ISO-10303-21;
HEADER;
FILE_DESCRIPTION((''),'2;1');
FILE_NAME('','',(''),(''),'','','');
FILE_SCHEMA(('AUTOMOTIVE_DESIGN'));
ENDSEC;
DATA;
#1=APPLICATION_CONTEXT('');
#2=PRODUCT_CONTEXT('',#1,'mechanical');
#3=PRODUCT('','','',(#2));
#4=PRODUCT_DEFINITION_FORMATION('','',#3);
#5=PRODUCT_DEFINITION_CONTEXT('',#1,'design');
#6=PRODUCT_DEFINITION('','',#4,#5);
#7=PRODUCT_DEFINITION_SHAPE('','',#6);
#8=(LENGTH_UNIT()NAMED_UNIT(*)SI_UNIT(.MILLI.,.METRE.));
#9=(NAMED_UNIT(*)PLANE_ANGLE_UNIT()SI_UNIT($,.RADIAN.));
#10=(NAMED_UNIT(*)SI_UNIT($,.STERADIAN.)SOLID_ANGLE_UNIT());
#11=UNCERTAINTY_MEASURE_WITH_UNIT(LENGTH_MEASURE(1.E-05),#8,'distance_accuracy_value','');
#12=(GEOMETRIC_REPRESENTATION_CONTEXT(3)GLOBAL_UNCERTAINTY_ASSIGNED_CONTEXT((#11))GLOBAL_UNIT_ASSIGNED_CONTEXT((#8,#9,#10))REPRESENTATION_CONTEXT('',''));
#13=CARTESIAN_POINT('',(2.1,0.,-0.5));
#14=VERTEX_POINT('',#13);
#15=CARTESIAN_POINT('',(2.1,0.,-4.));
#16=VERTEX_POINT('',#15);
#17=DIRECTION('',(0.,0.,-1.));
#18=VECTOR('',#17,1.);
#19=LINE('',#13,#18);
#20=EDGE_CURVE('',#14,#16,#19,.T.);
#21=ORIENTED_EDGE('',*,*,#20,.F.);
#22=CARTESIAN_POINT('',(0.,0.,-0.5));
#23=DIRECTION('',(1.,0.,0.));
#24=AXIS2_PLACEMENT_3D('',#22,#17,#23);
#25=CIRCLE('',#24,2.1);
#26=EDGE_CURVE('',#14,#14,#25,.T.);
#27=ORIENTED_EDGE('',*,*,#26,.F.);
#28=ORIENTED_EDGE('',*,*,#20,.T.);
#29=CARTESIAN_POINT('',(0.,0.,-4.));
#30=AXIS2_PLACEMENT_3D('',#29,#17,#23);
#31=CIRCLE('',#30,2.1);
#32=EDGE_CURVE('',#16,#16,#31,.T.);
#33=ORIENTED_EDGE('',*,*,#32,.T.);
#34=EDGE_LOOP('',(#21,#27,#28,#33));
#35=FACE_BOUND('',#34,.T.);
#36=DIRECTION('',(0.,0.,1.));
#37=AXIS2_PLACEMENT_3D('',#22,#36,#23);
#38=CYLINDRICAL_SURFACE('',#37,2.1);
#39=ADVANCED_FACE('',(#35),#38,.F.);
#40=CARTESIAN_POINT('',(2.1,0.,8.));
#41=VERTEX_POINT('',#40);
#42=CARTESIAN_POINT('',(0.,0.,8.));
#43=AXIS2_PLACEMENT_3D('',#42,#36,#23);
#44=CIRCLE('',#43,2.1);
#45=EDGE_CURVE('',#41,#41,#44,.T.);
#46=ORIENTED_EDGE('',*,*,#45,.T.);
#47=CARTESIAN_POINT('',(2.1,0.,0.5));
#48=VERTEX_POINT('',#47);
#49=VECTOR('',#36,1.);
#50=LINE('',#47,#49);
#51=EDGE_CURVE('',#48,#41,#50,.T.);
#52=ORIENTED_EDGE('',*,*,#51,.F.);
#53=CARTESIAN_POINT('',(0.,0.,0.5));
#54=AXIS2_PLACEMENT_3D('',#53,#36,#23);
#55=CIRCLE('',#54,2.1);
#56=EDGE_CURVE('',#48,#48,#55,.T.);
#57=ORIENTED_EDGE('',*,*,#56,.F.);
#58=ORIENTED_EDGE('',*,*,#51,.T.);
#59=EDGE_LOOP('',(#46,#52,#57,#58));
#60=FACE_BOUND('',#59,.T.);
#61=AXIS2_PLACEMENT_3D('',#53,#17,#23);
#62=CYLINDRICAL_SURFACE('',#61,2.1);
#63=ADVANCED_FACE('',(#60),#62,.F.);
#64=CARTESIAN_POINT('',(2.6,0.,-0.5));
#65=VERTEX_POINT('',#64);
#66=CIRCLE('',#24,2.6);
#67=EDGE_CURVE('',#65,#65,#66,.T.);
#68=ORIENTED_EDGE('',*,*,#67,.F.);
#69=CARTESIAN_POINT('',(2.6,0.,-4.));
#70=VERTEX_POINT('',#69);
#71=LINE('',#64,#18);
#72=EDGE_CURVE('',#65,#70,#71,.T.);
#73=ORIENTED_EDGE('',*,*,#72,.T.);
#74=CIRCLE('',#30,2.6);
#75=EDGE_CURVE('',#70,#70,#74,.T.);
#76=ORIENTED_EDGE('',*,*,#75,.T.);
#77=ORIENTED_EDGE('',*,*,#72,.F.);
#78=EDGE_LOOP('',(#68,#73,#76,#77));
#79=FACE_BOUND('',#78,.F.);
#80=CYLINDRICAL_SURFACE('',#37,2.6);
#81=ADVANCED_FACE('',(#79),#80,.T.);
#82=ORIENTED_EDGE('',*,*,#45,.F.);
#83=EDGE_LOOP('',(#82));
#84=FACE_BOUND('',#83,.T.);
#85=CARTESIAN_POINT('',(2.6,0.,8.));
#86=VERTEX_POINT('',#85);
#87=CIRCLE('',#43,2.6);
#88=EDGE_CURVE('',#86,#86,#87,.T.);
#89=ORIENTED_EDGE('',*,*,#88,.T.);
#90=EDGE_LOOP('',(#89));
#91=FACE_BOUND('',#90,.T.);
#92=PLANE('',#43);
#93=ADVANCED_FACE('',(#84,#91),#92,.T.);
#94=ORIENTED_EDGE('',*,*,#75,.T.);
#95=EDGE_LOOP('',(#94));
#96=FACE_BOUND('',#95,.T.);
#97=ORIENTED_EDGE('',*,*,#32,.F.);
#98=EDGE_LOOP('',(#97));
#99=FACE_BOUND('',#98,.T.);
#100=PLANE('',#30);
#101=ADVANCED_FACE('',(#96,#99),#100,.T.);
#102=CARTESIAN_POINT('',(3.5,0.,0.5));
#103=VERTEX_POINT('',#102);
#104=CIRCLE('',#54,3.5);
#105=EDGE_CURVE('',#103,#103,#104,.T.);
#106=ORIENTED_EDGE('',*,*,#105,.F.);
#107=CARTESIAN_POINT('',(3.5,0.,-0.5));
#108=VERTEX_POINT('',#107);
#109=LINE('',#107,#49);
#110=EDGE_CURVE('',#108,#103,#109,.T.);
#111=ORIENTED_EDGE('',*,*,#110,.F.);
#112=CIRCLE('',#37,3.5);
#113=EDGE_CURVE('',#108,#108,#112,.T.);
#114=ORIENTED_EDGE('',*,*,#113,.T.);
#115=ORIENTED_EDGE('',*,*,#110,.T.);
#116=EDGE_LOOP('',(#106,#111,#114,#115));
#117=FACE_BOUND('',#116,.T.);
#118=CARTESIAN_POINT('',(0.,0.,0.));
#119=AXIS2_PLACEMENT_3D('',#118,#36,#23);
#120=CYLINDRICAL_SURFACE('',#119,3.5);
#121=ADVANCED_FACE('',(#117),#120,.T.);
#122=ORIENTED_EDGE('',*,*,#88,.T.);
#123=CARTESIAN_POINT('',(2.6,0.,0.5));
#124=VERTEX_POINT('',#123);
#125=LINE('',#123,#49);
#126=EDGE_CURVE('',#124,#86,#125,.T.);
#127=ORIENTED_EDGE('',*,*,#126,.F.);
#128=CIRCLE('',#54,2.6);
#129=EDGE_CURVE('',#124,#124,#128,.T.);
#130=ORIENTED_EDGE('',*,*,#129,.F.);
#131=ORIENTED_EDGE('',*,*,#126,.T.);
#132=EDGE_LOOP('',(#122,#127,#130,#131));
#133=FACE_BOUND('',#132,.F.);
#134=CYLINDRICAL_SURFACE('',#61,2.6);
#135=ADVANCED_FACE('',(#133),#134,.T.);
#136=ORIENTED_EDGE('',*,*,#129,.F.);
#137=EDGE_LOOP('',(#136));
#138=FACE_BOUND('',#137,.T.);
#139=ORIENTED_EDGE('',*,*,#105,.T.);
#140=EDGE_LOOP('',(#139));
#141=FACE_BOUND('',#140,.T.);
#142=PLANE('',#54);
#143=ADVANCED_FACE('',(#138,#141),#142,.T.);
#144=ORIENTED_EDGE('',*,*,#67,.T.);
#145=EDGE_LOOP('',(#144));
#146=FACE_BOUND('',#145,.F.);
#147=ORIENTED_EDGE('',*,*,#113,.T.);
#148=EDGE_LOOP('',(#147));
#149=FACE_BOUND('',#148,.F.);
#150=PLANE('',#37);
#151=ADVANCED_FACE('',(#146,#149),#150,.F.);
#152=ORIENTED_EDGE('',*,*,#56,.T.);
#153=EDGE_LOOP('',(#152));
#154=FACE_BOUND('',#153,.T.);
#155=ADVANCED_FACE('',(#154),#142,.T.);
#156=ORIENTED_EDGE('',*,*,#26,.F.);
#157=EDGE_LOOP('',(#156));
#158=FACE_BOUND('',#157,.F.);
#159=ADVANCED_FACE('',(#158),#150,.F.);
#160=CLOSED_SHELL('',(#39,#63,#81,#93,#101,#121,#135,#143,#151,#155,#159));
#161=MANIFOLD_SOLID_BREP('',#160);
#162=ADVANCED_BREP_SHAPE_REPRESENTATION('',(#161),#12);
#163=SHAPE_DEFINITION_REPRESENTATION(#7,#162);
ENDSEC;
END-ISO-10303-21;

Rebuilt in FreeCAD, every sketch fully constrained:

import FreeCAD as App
import Part
import Sketcher

V = App.Vector

doc = App.newDocument("Part")
body = doc.addObject("PartDesign::Body", "Body")

# Sketch on XY plane
sketch1 = body.newObject("Sketcher::SketchObject", "Sketch")
sketch1.AttachmentSupport = (doc.getObject("XY_Plane"), [""])
sketch1.MapMode = "FlatFace"
sketch1.addGeometry(Part.Circle(V(0, 0, 0), V(0, 0, 1), 3.5), False)
sketch1.addConstraint([
    Sketcher.Constraint("Coincident", 0, 3, -1, 1),
    Sketcher.Constraint("Diameter", 0, 7.0),
])
pad1 = body.newObject("PartDesign::Pad", "Pad")
pad1.Profile = sketch1
pad1.Length = 1
pad1.Midplane = True

# Sketch on XY plane
sketch2 = body.newObject("Sketcher::SketchObject", "Sketch001")
sketch2.AttachmentSupport = (doc.getObject("XY_Plane"), [""])
sketch2.MapMode = "FlatFace"
sketch2.AttachmentOffset = App.Placement(V(0, 0, 0.5), App.Rotation())
sketch2.addGeometry([
    Part.Circle(V(0, 0, 0), V(0, 0, 1), 2.6),
    Part.Circle(V(0, 0, 0), V(0, 0, 1), 2.1),
], False)
sketch2.addConstraint([
    Sketcher.Constraint("Coincident", 0, 3, -1, 1),
    Sketcher.Constraint("Coincident", 1, 3, -1, 1),
    Sketcher.Constraint("Diameter", 0, 5.2),
    Sketcher.Constraint("Diameter", 1, 4.2),
])
pad2 = body.newObject("PartDesign::Pad", "Pad001")
pad2.Profile = sketch2
pad2.Length = 7.5

# Sketch on XY plane
sketch3 = body.newObject("Sketcher::SketchObject", "Sketch002")
sketch3.AttachmentSupport = (doc.getObject("XY_Plane"), [""])
sketch3.MapMode = "FlatFace"
sketch3.AttachmentOffset = App.Placement(V(0, 0, -0.5), App.Rotation())
sketch3.addGeometry([
    Part.Circle(V(0, 0, 0), V(0, 0, 1), 2.6),
    Part.Circle(V(0, 0, 0), V(0, 0, 1), 2.1),
], False)
sketch3.addConstraint([
    Sketcher.Constraint("Coincident", 0, 3, -1, 1),
    Sketcher.Constraint("Coincident", 1, 3, -1, 1),
    Sketcher.Constraint("Diameter", 0, 5.2),
    Sketcher.Constraint("Diameter", 1, 4.2),
])
pad3 = body.newObject("PartDesign::Pad", "Pad002")
pad3.Profile = sketch3
pad3.Length = 3.5
pad3.Reversed = True

doc.recompute()
